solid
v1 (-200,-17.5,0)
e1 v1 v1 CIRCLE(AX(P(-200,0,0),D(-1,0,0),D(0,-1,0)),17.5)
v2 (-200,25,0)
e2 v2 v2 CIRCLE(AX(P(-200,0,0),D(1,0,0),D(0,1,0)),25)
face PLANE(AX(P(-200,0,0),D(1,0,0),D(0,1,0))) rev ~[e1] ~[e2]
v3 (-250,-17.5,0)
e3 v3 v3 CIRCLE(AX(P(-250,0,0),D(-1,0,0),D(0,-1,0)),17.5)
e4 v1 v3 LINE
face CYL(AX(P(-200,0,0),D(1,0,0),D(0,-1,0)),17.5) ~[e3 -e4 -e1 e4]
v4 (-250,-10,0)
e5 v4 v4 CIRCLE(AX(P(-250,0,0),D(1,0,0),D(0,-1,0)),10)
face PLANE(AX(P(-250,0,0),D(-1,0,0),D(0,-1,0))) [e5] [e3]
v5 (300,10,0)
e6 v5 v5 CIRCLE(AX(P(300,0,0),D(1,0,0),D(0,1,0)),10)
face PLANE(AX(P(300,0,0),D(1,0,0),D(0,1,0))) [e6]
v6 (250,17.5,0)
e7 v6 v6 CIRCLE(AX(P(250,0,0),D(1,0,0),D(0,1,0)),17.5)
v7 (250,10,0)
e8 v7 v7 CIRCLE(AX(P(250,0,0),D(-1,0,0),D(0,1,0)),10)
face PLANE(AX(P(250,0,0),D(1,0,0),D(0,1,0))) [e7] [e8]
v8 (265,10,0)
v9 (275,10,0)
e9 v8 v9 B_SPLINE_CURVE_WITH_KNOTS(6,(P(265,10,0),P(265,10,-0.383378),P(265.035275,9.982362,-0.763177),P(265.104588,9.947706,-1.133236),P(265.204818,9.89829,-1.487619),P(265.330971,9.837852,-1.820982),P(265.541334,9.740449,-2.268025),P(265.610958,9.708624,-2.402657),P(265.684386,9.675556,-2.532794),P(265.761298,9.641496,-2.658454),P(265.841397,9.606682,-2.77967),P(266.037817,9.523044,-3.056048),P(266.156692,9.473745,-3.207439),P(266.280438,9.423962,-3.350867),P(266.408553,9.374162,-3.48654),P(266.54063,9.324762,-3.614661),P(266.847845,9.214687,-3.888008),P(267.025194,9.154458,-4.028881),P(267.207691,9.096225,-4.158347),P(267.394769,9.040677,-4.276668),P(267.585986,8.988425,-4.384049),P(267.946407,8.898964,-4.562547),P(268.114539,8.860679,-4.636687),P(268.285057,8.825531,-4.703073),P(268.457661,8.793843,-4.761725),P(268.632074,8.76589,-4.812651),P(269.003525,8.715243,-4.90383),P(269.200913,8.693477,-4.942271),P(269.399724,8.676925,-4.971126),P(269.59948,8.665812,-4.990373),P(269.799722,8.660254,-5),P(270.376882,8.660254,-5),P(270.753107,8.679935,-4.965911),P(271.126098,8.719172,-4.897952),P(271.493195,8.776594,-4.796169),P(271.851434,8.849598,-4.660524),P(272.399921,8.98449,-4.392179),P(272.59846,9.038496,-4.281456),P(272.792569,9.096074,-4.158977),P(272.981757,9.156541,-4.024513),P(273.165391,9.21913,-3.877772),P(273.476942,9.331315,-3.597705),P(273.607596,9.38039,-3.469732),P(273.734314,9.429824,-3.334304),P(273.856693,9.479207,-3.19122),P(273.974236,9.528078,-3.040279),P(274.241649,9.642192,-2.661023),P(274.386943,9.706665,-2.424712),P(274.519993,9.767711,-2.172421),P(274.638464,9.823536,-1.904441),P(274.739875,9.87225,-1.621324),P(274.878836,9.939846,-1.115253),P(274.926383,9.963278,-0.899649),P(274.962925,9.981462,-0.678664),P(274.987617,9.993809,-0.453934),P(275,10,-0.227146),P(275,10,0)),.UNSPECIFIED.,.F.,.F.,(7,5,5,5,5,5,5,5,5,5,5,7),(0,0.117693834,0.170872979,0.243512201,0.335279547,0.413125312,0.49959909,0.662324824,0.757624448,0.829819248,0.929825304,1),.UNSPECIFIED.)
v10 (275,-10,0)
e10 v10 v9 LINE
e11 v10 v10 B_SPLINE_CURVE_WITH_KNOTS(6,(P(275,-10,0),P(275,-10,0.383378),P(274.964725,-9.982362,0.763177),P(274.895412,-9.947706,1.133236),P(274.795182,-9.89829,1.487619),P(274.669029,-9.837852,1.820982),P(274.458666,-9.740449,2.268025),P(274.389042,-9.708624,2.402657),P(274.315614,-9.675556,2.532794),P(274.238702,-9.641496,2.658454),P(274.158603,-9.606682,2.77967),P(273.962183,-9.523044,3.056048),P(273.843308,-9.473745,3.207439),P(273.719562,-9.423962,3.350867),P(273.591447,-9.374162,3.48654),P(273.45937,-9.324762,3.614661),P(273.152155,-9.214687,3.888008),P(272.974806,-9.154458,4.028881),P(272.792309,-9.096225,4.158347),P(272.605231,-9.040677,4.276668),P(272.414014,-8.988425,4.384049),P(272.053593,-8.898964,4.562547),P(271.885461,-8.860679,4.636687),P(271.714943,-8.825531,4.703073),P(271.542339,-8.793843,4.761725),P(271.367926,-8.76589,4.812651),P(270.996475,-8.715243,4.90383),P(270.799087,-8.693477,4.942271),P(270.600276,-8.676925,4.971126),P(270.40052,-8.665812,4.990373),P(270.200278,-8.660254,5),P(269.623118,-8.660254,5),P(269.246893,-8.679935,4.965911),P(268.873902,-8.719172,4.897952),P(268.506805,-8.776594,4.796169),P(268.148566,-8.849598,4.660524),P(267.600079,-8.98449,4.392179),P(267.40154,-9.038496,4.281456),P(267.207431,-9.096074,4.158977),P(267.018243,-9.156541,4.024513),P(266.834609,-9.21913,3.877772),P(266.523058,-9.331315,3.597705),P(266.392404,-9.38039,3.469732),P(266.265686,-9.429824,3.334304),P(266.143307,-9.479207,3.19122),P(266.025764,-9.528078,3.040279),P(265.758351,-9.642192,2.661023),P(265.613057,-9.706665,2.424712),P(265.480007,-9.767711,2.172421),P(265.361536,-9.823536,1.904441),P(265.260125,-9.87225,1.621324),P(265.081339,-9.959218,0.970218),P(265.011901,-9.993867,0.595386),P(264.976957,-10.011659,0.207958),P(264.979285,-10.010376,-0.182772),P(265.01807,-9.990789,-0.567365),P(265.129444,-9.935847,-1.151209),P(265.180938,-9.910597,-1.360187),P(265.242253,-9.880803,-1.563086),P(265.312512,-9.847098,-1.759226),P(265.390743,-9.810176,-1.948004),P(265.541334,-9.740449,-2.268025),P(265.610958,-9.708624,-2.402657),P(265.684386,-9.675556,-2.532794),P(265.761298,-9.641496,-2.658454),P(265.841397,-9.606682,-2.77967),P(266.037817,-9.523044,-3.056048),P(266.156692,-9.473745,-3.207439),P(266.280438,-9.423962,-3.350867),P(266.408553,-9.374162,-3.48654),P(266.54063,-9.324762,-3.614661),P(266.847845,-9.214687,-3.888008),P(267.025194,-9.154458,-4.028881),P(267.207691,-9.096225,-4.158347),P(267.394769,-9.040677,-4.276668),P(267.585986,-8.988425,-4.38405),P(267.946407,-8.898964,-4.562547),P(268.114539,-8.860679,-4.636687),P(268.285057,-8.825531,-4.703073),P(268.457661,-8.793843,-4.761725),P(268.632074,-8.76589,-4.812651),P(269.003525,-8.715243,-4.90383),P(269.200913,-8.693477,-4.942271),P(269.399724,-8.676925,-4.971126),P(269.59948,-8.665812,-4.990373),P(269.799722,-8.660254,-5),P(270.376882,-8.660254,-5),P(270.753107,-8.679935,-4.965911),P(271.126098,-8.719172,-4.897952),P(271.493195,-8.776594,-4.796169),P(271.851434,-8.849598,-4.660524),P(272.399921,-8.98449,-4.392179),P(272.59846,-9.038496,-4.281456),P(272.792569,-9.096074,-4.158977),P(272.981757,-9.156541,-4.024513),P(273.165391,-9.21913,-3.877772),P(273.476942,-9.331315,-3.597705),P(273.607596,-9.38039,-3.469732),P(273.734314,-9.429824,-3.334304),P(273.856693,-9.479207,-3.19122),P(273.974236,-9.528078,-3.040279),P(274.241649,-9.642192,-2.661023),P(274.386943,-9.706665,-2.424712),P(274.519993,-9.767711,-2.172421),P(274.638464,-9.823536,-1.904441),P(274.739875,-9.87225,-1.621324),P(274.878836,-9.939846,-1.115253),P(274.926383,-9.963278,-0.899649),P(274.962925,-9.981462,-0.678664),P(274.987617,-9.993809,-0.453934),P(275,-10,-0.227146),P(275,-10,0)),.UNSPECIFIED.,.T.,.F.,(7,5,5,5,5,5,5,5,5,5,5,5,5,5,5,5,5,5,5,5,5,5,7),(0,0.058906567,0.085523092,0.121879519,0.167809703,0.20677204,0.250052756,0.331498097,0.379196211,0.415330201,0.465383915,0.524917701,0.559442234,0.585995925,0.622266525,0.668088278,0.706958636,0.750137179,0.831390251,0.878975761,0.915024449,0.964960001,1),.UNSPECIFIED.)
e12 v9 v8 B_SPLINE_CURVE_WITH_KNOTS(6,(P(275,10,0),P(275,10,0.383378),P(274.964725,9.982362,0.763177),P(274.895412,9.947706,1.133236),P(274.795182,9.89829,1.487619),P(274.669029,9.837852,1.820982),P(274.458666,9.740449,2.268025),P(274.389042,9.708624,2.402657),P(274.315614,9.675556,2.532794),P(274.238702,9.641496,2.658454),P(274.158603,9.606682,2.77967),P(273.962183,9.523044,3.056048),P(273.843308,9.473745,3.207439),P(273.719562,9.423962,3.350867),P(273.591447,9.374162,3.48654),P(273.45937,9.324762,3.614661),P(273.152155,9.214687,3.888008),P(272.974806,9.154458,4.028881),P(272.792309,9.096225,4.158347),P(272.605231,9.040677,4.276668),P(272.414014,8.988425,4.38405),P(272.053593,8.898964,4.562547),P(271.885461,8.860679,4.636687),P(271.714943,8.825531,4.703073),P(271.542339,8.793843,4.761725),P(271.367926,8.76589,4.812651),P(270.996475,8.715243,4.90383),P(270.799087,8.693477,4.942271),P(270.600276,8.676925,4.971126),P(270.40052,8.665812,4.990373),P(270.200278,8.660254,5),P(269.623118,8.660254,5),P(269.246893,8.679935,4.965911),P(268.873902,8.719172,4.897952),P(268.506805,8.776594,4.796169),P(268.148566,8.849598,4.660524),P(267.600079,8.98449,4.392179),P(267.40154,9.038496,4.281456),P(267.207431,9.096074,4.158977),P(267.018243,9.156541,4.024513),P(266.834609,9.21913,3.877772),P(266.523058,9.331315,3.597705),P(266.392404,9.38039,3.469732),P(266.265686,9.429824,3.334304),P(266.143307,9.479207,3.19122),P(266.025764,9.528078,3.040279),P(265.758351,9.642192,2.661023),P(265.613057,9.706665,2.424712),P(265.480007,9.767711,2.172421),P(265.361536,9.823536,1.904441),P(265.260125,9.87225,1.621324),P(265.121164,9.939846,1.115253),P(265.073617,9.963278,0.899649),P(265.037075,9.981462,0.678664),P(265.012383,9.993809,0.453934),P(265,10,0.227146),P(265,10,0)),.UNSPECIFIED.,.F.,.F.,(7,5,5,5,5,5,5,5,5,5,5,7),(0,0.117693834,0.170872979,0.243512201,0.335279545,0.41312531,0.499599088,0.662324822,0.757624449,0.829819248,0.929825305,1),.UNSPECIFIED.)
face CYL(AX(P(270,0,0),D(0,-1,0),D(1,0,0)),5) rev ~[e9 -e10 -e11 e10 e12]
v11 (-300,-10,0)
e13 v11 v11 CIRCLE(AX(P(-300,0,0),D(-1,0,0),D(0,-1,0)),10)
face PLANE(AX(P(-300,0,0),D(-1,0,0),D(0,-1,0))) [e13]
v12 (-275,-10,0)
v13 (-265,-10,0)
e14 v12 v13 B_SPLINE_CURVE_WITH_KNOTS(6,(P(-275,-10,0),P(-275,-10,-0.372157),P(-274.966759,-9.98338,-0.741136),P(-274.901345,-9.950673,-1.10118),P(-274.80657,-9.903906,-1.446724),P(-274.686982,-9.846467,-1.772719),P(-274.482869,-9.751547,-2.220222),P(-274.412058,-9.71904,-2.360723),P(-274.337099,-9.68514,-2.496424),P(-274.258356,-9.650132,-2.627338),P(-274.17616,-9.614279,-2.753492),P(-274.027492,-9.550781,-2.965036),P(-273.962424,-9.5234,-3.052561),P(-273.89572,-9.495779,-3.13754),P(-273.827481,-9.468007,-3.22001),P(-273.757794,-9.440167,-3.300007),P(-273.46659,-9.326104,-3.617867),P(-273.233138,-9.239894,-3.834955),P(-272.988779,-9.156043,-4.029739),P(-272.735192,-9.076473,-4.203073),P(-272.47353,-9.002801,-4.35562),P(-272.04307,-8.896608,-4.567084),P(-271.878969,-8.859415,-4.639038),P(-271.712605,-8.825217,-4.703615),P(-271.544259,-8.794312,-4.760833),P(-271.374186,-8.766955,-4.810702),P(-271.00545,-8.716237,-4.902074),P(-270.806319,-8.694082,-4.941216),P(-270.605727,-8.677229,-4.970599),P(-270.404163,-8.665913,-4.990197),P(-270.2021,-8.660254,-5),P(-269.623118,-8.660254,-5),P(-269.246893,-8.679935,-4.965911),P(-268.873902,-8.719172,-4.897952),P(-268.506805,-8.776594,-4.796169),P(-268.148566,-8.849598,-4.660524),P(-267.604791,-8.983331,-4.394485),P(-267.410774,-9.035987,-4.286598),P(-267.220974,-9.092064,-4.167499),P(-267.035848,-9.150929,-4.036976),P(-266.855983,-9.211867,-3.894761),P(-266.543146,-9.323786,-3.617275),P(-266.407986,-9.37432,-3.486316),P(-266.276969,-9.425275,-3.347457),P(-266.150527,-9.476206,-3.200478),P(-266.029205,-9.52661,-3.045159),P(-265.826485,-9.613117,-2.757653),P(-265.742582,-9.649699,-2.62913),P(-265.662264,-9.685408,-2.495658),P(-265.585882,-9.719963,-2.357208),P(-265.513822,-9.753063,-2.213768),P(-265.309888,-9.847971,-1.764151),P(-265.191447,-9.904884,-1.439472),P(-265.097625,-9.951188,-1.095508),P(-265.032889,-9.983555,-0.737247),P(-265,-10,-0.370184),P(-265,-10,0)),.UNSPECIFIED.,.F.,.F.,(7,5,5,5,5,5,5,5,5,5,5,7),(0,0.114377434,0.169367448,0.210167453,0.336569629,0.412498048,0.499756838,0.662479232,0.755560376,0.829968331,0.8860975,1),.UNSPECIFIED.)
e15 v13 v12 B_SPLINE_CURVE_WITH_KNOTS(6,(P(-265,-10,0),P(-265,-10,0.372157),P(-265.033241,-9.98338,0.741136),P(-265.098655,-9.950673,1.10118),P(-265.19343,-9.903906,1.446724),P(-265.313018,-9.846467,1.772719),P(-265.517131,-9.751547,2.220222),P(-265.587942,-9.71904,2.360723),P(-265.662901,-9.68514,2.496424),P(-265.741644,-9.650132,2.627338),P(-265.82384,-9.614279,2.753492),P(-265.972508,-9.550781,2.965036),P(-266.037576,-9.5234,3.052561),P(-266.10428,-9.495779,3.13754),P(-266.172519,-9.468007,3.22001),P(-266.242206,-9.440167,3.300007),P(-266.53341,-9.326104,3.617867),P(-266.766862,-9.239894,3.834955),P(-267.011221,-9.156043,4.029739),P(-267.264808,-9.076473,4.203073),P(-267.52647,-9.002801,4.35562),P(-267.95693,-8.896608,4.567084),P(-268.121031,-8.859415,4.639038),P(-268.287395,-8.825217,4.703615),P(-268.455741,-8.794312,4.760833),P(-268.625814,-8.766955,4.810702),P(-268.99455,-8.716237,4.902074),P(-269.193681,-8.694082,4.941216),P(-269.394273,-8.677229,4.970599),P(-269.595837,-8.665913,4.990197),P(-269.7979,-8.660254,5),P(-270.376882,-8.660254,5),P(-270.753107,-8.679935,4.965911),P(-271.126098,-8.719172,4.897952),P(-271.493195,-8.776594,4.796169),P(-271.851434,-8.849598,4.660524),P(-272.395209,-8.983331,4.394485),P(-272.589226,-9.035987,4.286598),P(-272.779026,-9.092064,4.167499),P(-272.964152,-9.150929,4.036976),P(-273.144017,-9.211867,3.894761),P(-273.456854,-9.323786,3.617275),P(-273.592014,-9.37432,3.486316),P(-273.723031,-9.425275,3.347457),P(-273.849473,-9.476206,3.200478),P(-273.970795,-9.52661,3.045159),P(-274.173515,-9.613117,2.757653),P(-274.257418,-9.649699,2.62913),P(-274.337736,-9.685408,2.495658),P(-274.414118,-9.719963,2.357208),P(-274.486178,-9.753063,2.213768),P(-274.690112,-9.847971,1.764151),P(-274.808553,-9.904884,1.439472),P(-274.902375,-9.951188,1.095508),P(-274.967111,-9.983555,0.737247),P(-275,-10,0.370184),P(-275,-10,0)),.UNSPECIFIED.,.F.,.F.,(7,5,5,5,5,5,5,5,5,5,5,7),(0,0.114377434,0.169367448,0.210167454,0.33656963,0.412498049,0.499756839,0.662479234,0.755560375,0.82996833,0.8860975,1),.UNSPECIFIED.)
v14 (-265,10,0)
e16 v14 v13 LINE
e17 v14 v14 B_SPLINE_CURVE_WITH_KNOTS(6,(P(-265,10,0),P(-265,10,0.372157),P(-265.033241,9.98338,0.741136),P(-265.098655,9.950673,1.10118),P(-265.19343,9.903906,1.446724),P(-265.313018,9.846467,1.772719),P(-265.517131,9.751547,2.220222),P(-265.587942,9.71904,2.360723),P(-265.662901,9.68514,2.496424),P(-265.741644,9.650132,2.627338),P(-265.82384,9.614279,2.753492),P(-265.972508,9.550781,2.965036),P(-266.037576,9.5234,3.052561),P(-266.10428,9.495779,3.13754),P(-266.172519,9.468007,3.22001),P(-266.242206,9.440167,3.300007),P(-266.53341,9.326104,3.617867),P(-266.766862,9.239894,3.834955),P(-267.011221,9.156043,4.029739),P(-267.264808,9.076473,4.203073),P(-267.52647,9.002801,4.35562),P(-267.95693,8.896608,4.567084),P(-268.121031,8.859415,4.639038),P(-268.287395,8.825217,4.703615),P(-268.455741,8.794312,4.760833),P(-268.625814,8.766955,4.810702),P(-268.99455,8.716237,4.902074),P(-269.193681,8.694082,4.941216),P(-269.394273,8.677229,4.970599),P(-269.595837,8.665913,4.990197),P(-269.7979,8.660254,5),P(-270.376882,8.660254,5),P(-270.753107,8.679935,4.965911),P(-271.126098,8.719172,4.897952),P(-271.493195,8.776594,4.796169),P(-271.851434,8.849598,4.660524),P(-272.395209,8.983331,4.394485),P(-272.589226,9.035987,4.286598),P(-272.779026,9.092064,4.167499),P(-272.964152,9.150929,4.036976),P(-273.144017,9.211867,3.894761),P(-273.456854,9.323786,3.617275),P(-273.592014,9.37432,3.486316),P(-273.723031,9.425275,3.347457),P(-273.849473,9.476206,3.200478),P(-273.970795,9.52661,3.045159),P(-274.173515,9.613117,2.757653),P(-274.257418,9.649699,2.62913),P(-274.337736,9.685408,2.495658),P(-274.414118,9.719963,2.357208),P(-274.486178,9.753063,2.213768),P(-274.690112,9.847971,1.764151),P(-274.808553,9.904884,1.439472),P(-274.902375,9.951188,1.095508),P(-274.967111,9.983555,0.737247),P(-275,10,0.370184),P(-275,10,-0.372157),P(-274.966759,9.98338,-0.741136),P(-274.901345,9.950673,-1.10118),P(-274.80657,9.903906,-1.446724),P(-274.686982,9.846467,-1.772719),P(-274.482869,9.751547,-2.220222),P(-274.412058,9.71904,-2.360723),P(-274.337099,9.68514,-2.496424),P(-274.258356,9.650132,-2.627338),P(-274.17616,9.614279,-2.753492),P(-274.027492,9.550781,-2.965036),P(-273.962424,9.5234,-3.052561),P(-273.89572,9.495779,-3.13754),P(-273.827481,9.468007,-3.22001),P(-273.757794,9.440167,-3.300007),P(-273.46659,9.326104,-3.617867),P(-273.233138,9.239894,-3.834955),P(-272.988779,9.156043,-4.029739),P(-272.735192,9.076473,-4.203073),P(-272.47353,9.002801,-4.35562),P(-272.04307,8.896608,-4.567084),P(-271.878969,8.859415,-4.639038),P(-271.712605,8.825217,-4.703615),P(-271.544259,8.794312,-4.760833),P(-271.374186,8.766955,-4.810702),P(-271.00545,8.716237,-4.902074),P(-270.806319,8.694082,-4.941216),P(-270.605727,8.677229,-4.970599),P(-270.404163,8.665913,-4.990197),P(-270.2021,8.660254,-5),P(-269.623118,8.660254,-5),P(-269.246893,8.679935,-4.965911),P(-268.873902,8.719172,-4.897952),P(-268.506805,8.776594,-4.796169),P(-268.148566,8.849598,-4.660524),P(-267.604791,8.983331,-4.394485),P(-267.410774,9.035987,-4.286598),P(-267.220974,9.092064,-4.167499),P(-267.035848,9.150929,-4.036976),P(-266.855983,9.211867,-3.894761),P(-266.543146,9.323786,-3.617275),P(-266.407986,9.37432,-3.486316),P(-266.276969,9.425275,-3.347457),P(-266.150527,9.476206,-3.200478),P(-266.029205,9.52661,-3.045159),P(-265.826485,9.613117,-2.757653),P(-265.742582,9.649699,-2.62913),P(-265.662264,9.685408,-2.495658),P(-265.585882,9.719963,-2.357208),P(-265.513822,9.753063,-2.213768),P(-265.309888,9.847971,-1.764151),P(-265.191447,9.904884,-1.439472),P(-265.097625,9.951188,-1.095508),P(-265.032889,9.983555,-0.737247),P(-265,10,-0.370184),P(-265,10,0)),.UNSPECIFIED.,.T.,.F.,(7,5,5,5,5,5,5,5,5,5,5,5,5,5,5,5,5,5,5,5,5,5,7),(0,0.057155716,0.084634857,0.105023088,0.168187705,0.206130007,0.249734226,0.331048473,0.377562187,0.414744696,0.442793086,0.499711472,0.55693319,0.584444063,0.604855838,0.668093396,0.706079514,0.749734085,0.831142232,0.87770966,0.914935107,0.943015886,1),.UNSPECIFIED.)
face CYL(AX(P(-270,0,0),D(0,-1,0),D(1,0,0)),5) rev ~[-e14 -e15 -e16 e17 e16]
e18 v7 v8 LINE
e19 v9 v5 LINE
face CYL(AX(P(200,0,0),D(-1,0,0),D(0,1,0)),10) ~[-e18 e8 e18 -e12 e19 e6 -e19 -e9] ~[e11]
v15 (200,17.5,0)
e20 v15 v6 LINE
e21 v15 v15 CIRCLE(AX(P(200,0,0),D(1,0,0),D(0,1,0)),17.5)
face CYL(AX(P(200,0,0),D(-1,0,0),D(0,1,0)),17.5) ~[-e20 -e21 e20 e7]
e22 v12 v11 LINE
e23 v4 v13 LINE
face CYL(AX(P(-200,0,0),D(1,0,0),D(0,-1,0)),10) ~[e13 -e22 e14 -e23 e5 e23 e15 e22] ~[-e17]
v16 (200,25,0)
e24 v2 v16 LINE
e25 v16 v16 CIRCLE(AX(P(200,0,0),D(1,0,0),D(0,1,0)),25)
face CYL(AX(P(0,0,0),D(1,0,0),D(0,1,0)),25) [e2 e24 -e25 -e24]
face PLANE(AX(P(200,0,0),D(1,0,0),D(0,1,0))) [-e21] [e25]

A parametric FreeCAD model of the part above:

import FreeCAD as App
import Part
import Sketcher

V = App.Vector
Q = App.Units.Quantity

doc = App.newDocument("Part")
body = doc.addObject("PartDesign::Body", "Body")

sketch1 = body.newObject("Sketcher::SketchObject", "Sketch")
sketch1.AttachmentSupport = (doc.getObject("YZ_Plane"), [""])
sketch1.MapMode = "FlatFace"
sketch1.addGeometry(Part.Circle(V(0, 0, 0), V(0, 0, 1), 25), False)
sketch1.addConstraint([
    Sketcher.Constraint("Coincident", 0, 3, -1, 1),
    Sketcher.Constraint("Diameter", 0, Q("50 mm")),
])
pad1 = body.newObject("PartDesign::Pad", "Pad")
pad1.Profile = sketch1
pad1.Length = 400
pad1.Midplane = True

sketch2 = body.newObject("Sketcher::SketchObject", "Sketch001")
sketch2.AttachmentSupport = (doc.getObject("YZ_Plane"), [""])
sketch2.MapMode = "FlatFace"
sketch2.AttachmentOffset = App.Placement(V(0, 0, -200), App.Rotation())
sketch2.addGeometry(Part.Circle(V(0, 0, 0), V(0, 0, 1), 10), False)
sketch2.addConstraint([
    Sketcher.Constraint("Coincident", 0, 3, -1, 1),
    Sketcher.Constraint("Diameter", 0, Q("20 mm")),
])
pad2 = body.newObject("PartDesign::Pad", "Pad001")
pad2.Profile = sketch2
pad2.Length = 100
pad2.Reversed = True

sketch3 = body.newObject("Sketcher::SketchObject", "Sketch002")
sketch3.AttachmentSupport = (doc.getObject("YZ_Plane"), [""])
sketch3.MapMode = "FlatFace"
sketch3.AttachmentOffset = App.Placement(V(0, 0, 200), App.Rotation())
sketch3.addGeometry(Part.Circle(V(0, 0, 0), V(0, 0, 1), 10), False)
sketch3.addConstraint([
    Sketcher.Constraint("Coincident", 0, 3, -1, 1),
    Sketcher.Constraint("Diameter", 0, Q("20 mm")),
])
pad3 = body.newObject("PartDesign::Pad", "Pad002")
pad3.Profile = sketch3
pad3.Length = 100

sketch4 = body.newObject("Sketcher::SketchObject", "Sketch003")
sketch4.AttachmentSupport = (doc.getObject("XZ_Plane"), [""])
sketch4.MapMode = "FlatFace"
sketch4.addGeometry([
    Part.Circle(V(270, 0, 0), V(0, 0, 1), 5),
    Part.Circle(V(-270, 0, 0), V(0, 0, 1), 5),
], False)
sketch4.addConstraint([
    Sketcher.Constraint("Equal", 0, 1),
    Sketcher.Constraint("Symmetric", 0, 3, 1, 3, -1, 1),
    Sketcher.Constraint("PointOnObject", 0, 3, -1),
    Sketcher.Constraint("Diameter", 0, Q("10 mm")),
    Sketcher.Constraint("DistanceX", -1, 1, 0, 3, Q("270 mm")),
])
pocket1 = body.newObject("PartDesign::Pocket", "Pocket")
pocket1.Profile = sketch4
pocket1.Length = 100
pocket1.Midplane = True

sketch5 = body.newObject("Sketcher::SketchObject", "Sketch004")
sketch5.AttachmentSupport = (doc.getObject("YZ_Plane"), [""])
sketch5.MapMode = "FlatFace"
sketch5.AttachmentOffset = App.Placement(V(0, 0, -200), App.Rotation())
sketch5.addGeometry(Part.Circle(V(0, 0, 0), V(0, 0, 1), 17.5), False)
sketch5.addConstraint([
    Sketcher.Constraint("Coincident", 0, 3, -1, 1),
    Sketcher.Constraint("Diameter", 0, Q("35 mm")),
])
pad4 = body.newObject("PartDesign::Pad", "Pad003")
pad4.Profile = sketch5
pad4.Length = 50
pad4.Reversed = True

sketch6 = body.newObject("Sketcher::SketchObject", "Sketch005")
sketch6.AttachmentSupport = (doc.getObject("YZ_Plane"), [""])
sketch6.MapMode = "FlatFace"
sketch6.AttachmentOffset = App.Placement(V(0, 0, 200), App.Rotation())
sketch6.addGeometry(Part.Circle(V(0, 0, 0), V(0, 0, 1), 17.5), False)
sketch6.addConstraint([
    Sketcher.Constraint("Coincident", 0, 3, -1, 1),
    Sketcher.Constraint("Diameter", 0, Q("35 mm")),
])
pad5 = body.newObject("PartDesign::Pad", "Pad004")
pad5.Profile = sketch6
pad5.Length = 50

doc.recompute()
